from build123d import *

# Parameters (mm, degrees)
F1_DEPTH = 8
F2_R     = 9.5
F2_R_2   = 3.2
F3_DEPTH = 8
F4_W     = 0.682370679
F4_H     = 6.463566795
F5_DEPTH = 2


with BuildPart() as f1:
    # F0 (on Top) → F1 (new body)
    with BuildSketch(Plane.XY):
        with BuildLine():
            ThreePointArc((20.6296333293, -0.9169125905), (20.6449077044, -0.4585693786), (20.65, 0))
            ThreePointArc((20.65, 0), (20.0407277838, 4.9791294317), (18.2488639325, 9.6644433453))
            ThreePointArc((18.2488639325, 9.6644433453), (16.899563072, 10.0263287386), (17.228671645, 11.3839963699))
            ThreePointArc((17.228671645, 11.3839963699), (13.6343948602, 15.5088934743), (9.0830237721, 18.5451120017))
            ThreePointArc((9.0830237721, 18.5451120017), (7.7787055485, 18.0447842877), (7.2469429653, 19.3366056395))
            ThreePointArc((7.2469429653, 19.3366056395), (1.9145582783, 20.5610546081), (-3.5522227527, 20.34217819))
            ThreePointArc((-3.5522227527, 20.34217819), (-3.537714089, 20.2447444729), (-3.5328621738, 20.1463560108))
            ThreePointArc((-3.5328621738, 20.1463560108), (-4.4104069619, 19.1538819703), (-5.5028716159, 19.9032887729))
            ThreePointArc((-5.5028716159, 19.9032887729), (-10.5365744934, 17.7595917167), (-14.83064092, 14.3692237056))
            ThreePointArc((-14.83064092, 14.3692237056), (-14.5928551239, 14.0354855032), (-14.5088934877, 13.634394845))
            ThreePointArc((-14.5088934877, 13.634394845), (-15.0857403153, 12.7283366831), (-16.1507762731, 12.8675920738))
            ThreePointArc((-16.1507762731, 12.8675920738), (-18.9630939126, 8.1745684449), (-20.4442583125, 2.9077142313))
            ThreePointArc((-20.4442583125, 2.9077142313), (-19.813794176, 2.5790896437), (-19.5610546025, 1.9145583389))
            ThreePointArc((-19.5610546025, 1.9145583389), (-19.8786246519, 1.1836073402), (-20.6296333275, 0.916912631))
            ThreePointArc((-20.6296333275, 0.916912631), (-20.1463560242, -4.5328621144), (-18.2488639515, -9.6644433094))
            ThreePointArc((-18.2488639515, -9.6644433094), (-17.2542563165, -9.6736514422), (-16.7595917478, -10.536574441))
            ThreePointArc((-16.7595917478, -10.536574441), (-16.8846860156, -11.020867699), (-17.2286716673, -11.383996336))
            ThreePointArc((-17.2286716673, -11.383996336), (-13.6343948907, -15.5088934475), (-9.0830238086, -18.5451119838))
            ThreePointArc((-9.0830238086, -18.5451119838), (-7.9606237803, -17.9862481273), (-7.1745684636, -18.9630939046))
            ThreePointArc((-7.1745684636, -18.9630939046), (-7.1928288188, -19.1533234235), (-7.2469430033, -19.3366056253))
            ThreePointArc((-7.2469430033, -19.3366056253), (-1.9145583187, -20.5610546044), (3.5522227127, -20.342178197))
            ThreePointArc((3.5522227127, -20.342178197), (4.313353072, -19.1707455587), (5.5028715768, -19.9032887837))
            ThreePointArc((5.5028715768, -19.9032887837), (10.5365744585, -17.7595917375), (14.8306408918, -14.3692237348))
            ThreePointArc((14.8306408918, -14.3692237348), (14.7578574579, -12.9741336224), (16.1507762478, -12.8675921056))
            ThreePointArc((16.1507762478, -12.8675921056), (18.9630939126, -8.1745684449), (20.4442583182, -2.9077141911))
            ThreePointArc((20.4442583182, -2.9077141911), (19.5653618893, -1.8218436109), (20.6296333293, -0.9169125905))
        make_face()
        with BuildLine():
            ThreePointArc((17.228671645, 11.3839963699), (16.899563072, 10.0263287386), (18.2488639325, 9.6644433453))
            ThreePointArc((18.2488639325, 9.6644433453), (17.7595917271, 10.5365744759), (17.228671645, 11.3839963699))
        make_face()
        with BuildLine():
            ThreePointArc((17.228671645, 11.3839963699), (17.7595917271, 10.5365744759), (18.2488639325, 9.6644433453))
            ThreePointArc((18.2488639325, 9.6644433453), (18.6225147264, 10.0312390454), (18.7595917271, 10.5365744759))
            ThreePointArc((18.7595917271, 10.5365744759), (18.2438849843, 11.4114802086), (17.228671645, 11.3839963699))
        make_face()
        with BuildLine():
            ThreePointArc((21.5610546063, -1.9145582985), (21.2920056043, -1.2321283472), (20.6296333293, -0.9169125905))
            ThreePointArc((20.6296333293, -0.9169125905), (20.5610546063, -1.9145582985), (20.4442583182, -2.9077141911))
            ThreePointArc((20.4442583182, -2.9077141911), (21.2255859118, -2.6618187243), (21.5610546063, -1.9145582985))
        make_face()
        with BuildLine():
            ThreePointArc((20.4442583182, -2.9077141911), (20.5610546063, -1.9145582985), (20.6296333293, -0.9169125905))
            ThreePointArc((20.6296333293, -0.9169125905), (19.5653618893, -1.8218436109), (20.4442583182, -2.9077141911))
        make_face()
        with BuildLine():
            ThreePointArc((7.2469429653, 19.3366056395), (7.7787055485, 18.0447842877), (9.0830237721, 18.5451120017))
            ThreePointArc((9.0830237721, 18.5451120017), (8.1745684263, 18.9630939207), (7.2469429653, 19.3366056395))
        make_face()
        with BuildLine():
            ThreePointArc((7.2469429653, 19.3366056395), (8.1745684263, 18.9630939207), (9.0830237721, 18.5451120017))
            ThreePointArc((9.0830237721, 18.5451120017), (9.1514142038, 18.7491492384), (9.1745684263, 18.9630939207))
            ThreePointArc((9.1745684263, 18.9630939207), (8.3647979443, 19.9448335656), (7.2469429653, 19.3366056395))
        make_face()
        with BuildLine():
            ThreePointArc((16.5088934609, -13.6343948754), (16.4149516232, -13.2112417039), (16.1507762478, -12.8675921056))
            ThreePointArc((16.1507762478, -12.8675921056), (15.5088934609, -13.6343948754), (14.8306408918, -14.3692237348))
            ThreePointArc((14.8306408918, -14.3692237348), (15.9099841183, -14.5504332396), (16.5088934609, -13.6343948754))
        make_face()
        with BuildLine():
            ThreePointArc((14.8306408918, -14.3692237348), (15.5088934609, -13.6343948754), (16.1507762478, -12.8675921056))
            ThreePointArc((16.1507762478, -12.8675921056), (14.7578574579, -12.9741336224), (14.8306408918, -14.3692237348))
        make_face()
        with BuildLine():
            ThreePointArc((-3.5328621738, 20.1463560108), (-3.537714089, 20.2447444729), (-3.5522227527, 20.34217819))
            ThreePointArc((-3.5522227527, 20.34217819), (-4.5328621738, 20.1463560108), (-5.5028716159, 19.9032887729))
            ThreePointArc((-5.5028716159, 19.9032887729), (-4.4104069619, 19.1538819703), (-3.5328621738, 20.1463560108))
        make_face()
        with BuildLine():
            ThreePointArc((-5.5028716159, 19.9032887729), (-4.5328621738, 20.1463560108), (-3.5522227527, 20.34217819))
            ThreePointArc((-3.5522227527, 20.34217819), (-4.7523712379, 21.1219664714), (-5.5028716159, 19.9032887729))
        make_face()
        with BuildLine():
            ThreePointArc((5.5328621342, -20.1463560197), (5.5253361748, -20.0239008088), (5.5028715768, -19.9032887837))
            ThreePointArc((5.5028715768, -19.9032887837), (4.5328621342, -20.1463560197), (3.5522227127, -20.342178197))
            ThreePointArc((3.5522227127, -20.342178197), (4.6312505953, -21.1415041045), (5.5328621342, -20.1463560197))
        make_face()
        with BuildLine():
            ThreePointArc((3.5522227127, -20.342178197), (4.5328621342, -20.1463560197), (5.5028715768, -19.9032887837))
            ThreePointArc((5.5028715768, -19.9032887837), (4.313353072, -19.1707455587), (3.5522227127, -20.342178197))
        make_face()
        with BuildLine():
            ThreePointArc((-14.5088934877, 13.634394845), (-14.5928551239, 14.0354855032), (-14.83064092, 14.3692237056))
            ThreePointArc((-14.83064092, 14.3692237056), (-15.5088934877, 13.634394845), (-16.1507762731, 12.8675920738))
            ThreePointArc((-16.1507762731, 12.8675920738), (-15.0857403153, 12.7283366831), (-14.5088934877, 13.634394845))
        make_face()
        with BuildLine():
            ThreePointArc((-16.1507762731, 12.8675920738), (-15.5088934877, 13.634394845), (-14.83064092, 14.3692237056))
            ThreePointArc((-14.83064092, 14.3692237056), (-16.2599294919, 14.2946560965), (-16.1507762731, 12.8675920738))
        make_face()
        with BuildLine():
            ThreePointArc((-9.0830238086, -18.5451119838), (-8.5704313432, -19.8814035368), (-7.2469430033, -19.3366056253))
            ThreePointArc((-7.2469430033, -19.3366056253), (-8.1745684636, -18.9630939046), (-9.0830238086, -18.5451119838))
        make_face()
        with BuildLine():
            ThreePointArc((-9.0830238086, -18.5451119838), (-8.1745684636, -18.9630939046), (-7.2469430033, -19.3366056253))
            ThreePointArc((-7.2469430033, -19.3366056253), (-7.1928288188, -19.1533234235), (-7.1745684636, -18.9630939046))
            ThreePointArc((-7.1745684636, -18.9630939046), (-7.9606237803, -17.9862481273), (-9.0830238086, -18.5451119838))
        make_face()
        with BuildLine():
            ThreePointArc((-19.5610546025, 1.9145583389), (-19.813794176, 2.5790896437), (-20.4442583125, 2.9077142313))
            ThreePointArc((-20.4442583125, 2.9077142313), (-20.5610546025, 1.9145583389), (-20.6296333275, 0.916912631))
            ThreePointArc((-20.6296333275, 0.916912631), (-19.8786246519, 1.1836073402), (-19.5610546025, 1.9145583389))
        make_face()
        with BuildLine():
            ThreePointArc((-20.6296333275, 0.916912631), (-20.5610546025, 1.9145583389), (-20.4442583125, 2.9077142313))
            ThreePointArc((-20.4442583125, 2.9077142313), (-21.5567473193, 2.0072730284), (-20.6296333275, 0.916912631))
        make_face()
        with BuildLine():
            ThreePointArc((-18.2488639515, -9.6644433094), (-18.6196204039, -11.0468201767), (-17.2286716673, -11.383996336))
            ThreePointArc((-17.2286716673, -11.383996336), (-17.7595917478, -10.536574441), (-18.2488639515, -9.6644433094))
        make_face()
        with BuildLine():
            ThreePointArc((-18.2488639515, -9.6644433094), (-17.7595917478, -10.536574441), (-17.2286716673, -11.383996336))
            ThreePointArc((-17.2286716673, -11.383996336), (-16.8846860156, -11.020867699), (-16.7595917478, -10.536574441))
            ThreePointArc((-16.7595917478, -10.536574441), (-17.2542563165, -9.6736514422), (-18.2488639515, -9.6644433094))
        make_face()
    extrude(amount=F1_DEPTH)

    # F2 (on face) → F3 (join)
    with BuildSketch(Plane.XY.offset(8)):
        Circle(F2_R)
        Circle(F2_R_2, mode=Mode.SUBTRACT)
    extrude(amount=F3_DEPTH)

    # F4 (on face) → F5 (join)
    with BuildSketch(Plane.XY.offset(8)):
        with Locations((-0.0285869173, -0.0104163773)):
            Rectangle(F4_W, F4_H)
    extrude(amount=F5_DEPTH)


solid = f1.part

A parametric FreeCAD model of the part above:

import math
import FreeCAD as App
import Part
import Sketcher

V = App.Vector
Q = App.Units.Quantity


def add_polygon(sketch, points):
    """Adds a closed chain of lines whose ends are joined by coincident constraints."""
    first, n = sketch.GeometryCount, len(points)
    for a, b in zip(points, points[1:] + points[:1]):
        sketch.addGeometry(Part.LineSegment(App.Vector(*a, 0), App.Vector(*b, 0)), False)
    for i in range(n):
        sketch.addConstraint(Sketcher.Constraint("Coincident", first + i, 2, first + (i + 1) % n, 1))

doc = App.newDocument("Part")
body = doc.addObject("PartDesign::Body", "Body")

# Sketch on XY plane
sketch1 = doc.addObject("Sketcher::SketchObject", "Sketch")
body.addObject(sketch1)
sketch1.AttachmentSupport = (doc.XY_Plane, [""])
sketch1.MapMode = "FlatFace"
sketch1.addGeometry(Part.ArcOfCircle(Part.Circle(V(0, 0, 0), V(0, 0, 1), 20.65), math.radians(-2.544915), math.radians(0)), False)
sketch1.addGeometry(Part.ArcOfCircle(Part.Circle(V(0, 0, 0), V(0, 0, 1), 20.65), math.radians(0), math.radians(27.905314)), False)
sketch1.addGeometry(Part.ArcOfCircle(Part.Circle(V(17.759592, 10.536574, 0), V(0, 0, 1), 1), math.radians(-60.707243), math.radians(0)), False)
sketch1.addGeometry(Part.ArcOfCircle(Part.Circle(V(17.759592, 10.536574, 0), V(0, 0, 1), 1), math.radians(0), math.radians(122.067642)), False)
sketch1.addGeometry(Part.ArcOfCircle(Part.Circle(V(0, 0, 0), V(0, 0, 1), 20.65), math.radians(33.455085), math.radians(63.905314)), False)
sketch1.addGeometry(Part.ArcOfCircle(Part.Circle(V(8.174568, 18.963094, 0), V(0, 0, 1), 1), math.radians(-24.707243), math.radians(0)), False)
sketch1.addGeometry(Part.ArcOfCircle(Part.Circle(V(8.174568, 18.963094, 0), V(0, 0, 1), 1), math.radians(0), math.radians(158.067642)), False)
sketch1.addGeometry(Part.ArcOfCircle(Part.Circle(V(0, 0, 0), V(0, 0, 1), 20.65), math.radians(69.455085), math.radians(99.905314)), False)
sketch1.addGeometry(Part.ArcOfCircle(Part.Circle(V(-4.532862, 20.146356, 0), V(0, 0, 1), 1), math.radians(11.292757), math.radians(194.067642)), False)
sketch1.addGeometry(Part.ArcOfCircle(Part.Circle(V(0, 0, 0), V(0, 0, 1), 20.65), math.radians(105.455085), math.radians(135.905314)), False)
sketch1.addGeometry(Part.ArcOfCircle(Part.Circle(V(-15.508893, 13.634395, 0), V(0, 0, 1), 1), math.radians(47.292757), math.radians(230.067642)), False)
sketch1.addGeometry(Part.ArcOfCircle(Part.Circle(V(0, 0, 0), V(0, 0, 1), 20.65), math.radians(141.455085), math.radians(171.905314)), False)
sketch1.addGeometry(Part.ArcOfCircle(Part.Circle(V(-20.561055, 1.914558, 0), V(0, 0, 1), 1), math.radians(83.292757), math.radians(266.067642)), False)
sketch1.addGeometry(Part.ArcOfCircle(Part.Circle(V(0, 0, 0), V(0, 0, 1), 20.65), math.radians(177.455085), math.radians(207.905314)), False)
sketch1.addGeometry(Part.ArcOfCircle(Part.Circle(V(-17.759592, -10.536574, 0), V(0, 0, 1), 1), math.radians(119.292757), math.radians(302.067642)), False)
sketch1.addGeometry(Part.ArcOfCircle(Part.Circle(V(0, 0, 0), V(0, 0, 1), 20.65), math.radians(-146.544915), math.radians(-116.094686)), False)
sketch1.addGeometry(Part.ArcOfCircle(Part.Circle(V(-8.174568, -18.963094, 0), V(0, 0, 1), 1), math.radians(155.292757), math.radians(338.067642)), False)
sketch1.addGeometry(Part.ArcOfCircle(Part.Circle(V(0, 0, 0), V(0, 0, 1), 20.65), math.radians(-110.544915), math.radians(-80.094686)), False)
sketch1.addGeometry(Part.ArcOfCircle(Part.Circle(V(4.532862, -20.146356, 0), V(0, 0, 1), 1), math.radians(-168.707243), math.radians(0)), False)
sketch1.addGeometry(Part.ArcOfCircle(Part.Circle(V(4.532862, -20.146356, 0), V(0, 0, 1), 1), math.radians(0), math.radians(14.067642)), False)
sketch1.addGeometry(Part.ArcOfCircle(Part.Circle(V(0, 0, 0), V(0, 0, 1), 20.65), math.radians(-74.544915), math.radians(-44.094686)), False)
sketch1.addGeometry(Part.ArcOfCircle(Part.Circle(V(15.508893, -13.634395, 0), V(0, 0, 1), 1), math.radians(-132.707243), math.radians(0)), False)
sketch1.addGeometry(Part.ArcOfCircle(Part.Circle(V(15.508893, -13.634395, 0), V(0, 0, 1), 1), math.radians(0), math.radians(50.067642)), False)
sketch1.addGeometry(Part.ArcOfCircle(Part.Circle(V(0, 0, 0), V(0, 0, 1), 20.65), math.radians(-38.544915), math.radians(-8.094686)), False)
sketch1.addGeometry(Part.ArcOfCircle(Part.Circle(V(20.561055, -1.914558, 0), V(0, 0, 1), 1), math.radians(-96.707243), math.radians(0)), False)
sketch1.addGeometry(Part.ArcOfCircle(Part.Circle(V(20.561055, -1.914558, 0), V(0, 0, 1), 1), math.radians(0), math.radians(86.067642)), False)
sketch1.addConstraint(Sketcher.Constraint("Tangent", 0, 2, 1, 1))
sketch1.addConstraint(Sketcher.Constraint("Coincident", 1, 2, 2, 1))
sketch1.addConstraint(Sketcher.Constraint("Tangent", 2, 2, 3, 1))
sketch1.addConstraint(Sketcher.Constraint("Coincident", 3, 2, 4, 1))
sketch1.addConstraint(Sketcher.Constraint("Coincident", 4, 2, 5, 1))
sketch1.addConstraint(Sketcher.Constraint("Tangent", 5, 2, 6, 1))
sketch1.addConstraint(Sketcher.Constraint("Coincident", 6, 2, 7, 1))
sketch1.addConstraint(Sketcher.Constraint("Coincident", 7, 2, 8, 1))
sketch1.addConstraint(Sketcher.Constraint("Coincident", 8, 2, 9, 1))
sketch1.addConstraint(Sketcher.Constraint("Coincident", 9, 2, 10, 1))
sketch1.addConstraint(Sketcher.Constraint("Coincident", 10, 2, 11, 1))
sketch1.addConstraint(Sketcher.Constraint("Coincident", 11, 2, 12, 1))
sketch1.addConstraint(Sketcher.Constraint("Coincident", 12, 2, 13, 1))
sketch1.addConstraint(Sketcher.Constraint("Coincident", 13, 2, 14, 1))
sketch1.addConstraint(Sketcher.Constraint("Coincident", 14, 2, 15, 1))
sketch1.addConstraint(Sketcher.Constraint("Coincident", 15, 2, 16, 1))
sketch1.addConstraint(Sketcher.Constraint("Coincident", 16, 2, 17, 1))
sketch1.addConstraint(Sketcher.Constraint("Coincident", 17, 2, 18, 1))
sketch1.addConstraint(Sketcher.Constraint("Tangent", 18, 2, 19, 1))
sketch1.addConstraint(Sketcher.Constraint("Coincident", 19, 2, 20, 1))
sketch1.addConstraint(Sketcher.Constraint("Coincident", 20, 2, 21, 1))
sketch1.addConstraint(Sketcher.Constraint("Tangent", 21, 2, 22, 1))
sketch1.addConstraint(Sketcher.Constraint("Coincident", 22, 2, 23, 1))
sketch1.addConstraint(Sketcher.Constraint("Coincident", 23, 2, 24, 1))
sketch1.addConstraint(Sketcher.Constraint("Tangent", 24, 2, 25, 1))
sketch1.addConstraint(Sketcher.Constraint("Coincident", 25, 2, 0, 1))
sketch1.addConstraint(Sketcher.Constraint("Coincident", 0, 3, -1, 1))
sketch1.addConstraint(Sketcher.Constraint("Coincident", 4, 3, -1, 1))
sketch1.addConstraint(Sketcher.Constraint("Coincident", 7, 3, -1, 1))
sketch1.addConstraint(Sketcher.Constraint("Coincident", 9, 3, -1, 1))
sketch1.addConstraint(Sketcher.Constraint("Coincident", 11, 3, -1, 1))
sketch1.addConstraint(Sketcher.Constraint("Coincident", 13, 3, -1, 1))
sketch1.addConstraint(Sketcher.Constraint("Coincident", 15, 3, -1, 1))
sketch1.addConstraint(Sketcher.Constraint("Coincident", 17, 3, -1, 1))
sketch1.addConstraint(Sketcher.Constraint("Coincident", 20, 3, -1, 1))
sketch1.addConstraint(Sketcher.Constraint("Coincident", 23, 3, -1, 1))
sketch1.addConstraint(Sketcher.Constraint("Equal", 0, 1))
sketch1.addConstraint(Sketcher.Constraint("Equal", 2, 3))
sketch1.addConstraint(Sketcher.Constraint("Equal", 1, 4))
sketch1.addConstraint(Sketcher.Constraint("Equal", 3, 5))
sketch1.addConstraint(Sketcher.Constraint("Equal", 5, 6))
sketch1.addConstraint(Sketcher.Constraint("Equal", 4, 7))
sketch1.addConstraint(Sketcher.Constraint("Equal", 6, 8))
sketch1.addConstraint(Sketcher.Constraint("Equal", 7, 9))
sketch1.addConstraint(Sketcher.Constraint("Equal", 8, 10))
sketch1.addConstraint(Sketcher.Constraint("Equal", 9, 11))
sketch1.addConstraint(Sketcher.Constraint("Equal", 10, 12))
sketch1.addConstraint(Sketcher.Constraint("Equal", 11, 13))
sketch1.addConstraint(Sketcher.Constraint("Equal", 12, 14))
sketch1.addConstraint(Sketcher.Constraint("Equal", 13, 15))
sketch1.addConstraint(Sketcher.Constraint("Equal", 14, 16))
sketch1.addConstraint(Sketcher.Constraint("Equal", 15, 17))
sketch1.addConstraint(Sketcher.Constraint("Equal", 16, 18))
sketch1.addConstraint(Sketcher.Constraint("Equal", 18, 19))
sketch1.addConstraint(Sketcher.Constraint("Equal", 17, 20))
sketch1.addConstraint(Sketcher.Constraint("Equal", 19, 21))
sketch1.addConstraint(Sketcher.Constraint("Equal", 21, 22))
sketch1.addConstraint(Sketcher.Constraint("Equal", 20, 23))
sketch1.addConstraint(Sketcher.Constraint("Equal", 22, 24))
sketch1.addConstraint(Sketcher.Constraint("Equal", 24, 25))
sketch1.addConstraint(Sketcher.Constraint("Symmetric", 2, 3, 14, 3, -1, 1))
sketch1.addConstraint(Sketcher.Constraint("Symmetric", 5, 3, 16, 3, -1, 1))
sketch1.addConstraint(Sketcher.Constraint("Symmetric", 8, 3, 18, 3, -1, 1))
sketch1.addConstraint(Sketcher.Constraint("Symmetric", 10, 3, 21, 3, -1, 1))
sketch1.addConstraint(Sketcher.Constraint("Symmetric", 12, 3, 24, 3, -1, 1))
sketch1.addConstraint(Sketcher.Constraint("PointOnObject", 0, 2, -1))
sketch1.addConstraint(Sketcher.Constraint("Horizontal", 3, 3, 2, 2))
sketch1.addConstraint(Sketcher.Constraint("Horizontal", 6, 3, 5, 2))
sketch1.addConstraint(Sketcher.Constraint("Horizontal", 19, 3, 18, 2))
sketch1.addConstraint(Sketcher.Constraint("Horizontal", 22, 3, 21, 2))
sketch1.addConstraint(Sketcher.Constraint("Horizontal", 25, 3, 24, 2))
sketch1.addConstraint(Sketcher.Constraint("Radius", 2, Q("1 mm")))
sketch1.addConstraint(Sketcher.Constraint("Radius", 0, Q("20.65 mm")))
sketch1.addConstraint(Sketcher.Constraint("DistanceY", 24, 3, 1, 2, Q("11.579002 mm")))
sketch1.addConstraint(Sketcher.Constraint("DistanceX", -1, 1, 2, 3, Q("17.759592 mm")))
sketch1.addConstraint(Sketcher.Constraint("DistanceX", -1, 1, 5, 3, Q("8.174568 mm")))
sketch1.addConstraint(Sketcher.Constraint("DistanceY", -1, 1, 12, 3, Q("1.914558 mm")))
sketch1.addConstraint(Sketcher.Constraint("DistanceY", -1, 1, 7, 2, Q("20.342178 mm")))
sketch1.addConstraint(Sketcher.Constraint("DistanceX", 8, 2, -1, 1, Q("5.502872 mm")))
sketch1.addConstraint(Sketcher.Constraint("DistanceX", 9, 2, -1, 1, Q("14.830641 mm")))
sketch1.addConstraint(Sketcher.Constraint("DistanceY", 15, 2, -1, 1, Q("18.545112 mm")))
sketch1.addConstraint(Sketcher.Constraint("DistanceX", 10, 3, 8, 3, Q("10.976031 mm")))
sketch1.addConstraint(Sketcher.Constraint("DistanceX", 12, 3, 10, 3, Q("5.052161 mm")))
pad1 = doc.addObject("PartDesign::Pad", "Pad")
body.addObject(pad1)
pad1.Profile = sketch1
pad1.Length = 8

# Sketch on XY plane
sketch2 = doc.addObject("Sketcher::SketchObject", "Sketch001")
body.addObject(sketch2)
sketch2.AttachmentSupport = (doc.XY_Plane, [""])
sketch2.MapMode = "FlatFace"
sketch2.AttachmentOffset = App.Placement(V(0, 0, 8), App.Rotation())
sketch2.addGeometry(Part.Circle(V(0, 0, 0), V(0, 0, 1), 9.5), False)
sketch2.addGeometry(Part.Circle(V(0, 0, 0), V(0, 0, 1), 3.2), False)
sketch2.addConstraint(Sketcher.Constraint("Coincident", 0, 3, -1, 1))
sketch2.addConstraint(Sketcher.Constraint("Coincident", 1, 3, -1, 1))
sketch2.addConstraint(Sketcher.Constraint("Diameter", 0, Q("19 mm")))
sketch2.addConstraint(Sketcher.Constraint("Diameter", 1, Q("6.4 mm")))
pad2 = doc.addObject("PartDesign::Pad", "Pad001")
body.addObject(pad2)
pad2.Profile = sketch2
pad2.Length = 8

# Sketch on XY plane
sketch3 = doc.addObject("Sketcher::SketchObject", "Sketch002")
body.addObject(sketch3)
sketch3.AttachmentSupport = (doc.XY_Plane, [""])
sketch3.MapMode = "FlatFace"
sketch3.AttachmentOffset = App.Placement(V(0, 0, 8), App.Rotation())
add_polygon(sketch3, [(-0.4, 3.2), (-0.4, -3.2), (0.3, -3.2), (0.3, 3.2)])  # lines 0-3
sketch3.addConstraint(Sketcher.Constraint("Vertical", 0))
sketch3.addConstraint(Sketcher.Constraint("Horizontal", 1))
sketch3.addConstraint(Sketcher.Constraint("Vertical", 2))
sketch3.addConstraint(Sketcher.Constraint("Horizontal", 3))
sketch3.addConstraint(Sketcher.Constraint("DistanceX", 1, 1, 1, 2, Q("0.682371 mm")))
sketch3.addConstraint(Sketcher.Constraint("DistanceY", 0, 2, -1, 1, Q("3.2422 mm")))
sketch3.addConstraint(Sketcher.Constraint("DistanceX", -1, 1, 1, 2, Q("0.312598 mm")))
sketch3.addConstraint(Sketcher.Constraint("DistanceY", 0, 2, 0, 1, Q("6.463567 mm")))
pad3 = doc.addObject("PartDesign::Pad", "Pad002")
body.addObject(pad3)
pad3.Profile = sketch3
pad3.Length = 2

doc.recompute()
